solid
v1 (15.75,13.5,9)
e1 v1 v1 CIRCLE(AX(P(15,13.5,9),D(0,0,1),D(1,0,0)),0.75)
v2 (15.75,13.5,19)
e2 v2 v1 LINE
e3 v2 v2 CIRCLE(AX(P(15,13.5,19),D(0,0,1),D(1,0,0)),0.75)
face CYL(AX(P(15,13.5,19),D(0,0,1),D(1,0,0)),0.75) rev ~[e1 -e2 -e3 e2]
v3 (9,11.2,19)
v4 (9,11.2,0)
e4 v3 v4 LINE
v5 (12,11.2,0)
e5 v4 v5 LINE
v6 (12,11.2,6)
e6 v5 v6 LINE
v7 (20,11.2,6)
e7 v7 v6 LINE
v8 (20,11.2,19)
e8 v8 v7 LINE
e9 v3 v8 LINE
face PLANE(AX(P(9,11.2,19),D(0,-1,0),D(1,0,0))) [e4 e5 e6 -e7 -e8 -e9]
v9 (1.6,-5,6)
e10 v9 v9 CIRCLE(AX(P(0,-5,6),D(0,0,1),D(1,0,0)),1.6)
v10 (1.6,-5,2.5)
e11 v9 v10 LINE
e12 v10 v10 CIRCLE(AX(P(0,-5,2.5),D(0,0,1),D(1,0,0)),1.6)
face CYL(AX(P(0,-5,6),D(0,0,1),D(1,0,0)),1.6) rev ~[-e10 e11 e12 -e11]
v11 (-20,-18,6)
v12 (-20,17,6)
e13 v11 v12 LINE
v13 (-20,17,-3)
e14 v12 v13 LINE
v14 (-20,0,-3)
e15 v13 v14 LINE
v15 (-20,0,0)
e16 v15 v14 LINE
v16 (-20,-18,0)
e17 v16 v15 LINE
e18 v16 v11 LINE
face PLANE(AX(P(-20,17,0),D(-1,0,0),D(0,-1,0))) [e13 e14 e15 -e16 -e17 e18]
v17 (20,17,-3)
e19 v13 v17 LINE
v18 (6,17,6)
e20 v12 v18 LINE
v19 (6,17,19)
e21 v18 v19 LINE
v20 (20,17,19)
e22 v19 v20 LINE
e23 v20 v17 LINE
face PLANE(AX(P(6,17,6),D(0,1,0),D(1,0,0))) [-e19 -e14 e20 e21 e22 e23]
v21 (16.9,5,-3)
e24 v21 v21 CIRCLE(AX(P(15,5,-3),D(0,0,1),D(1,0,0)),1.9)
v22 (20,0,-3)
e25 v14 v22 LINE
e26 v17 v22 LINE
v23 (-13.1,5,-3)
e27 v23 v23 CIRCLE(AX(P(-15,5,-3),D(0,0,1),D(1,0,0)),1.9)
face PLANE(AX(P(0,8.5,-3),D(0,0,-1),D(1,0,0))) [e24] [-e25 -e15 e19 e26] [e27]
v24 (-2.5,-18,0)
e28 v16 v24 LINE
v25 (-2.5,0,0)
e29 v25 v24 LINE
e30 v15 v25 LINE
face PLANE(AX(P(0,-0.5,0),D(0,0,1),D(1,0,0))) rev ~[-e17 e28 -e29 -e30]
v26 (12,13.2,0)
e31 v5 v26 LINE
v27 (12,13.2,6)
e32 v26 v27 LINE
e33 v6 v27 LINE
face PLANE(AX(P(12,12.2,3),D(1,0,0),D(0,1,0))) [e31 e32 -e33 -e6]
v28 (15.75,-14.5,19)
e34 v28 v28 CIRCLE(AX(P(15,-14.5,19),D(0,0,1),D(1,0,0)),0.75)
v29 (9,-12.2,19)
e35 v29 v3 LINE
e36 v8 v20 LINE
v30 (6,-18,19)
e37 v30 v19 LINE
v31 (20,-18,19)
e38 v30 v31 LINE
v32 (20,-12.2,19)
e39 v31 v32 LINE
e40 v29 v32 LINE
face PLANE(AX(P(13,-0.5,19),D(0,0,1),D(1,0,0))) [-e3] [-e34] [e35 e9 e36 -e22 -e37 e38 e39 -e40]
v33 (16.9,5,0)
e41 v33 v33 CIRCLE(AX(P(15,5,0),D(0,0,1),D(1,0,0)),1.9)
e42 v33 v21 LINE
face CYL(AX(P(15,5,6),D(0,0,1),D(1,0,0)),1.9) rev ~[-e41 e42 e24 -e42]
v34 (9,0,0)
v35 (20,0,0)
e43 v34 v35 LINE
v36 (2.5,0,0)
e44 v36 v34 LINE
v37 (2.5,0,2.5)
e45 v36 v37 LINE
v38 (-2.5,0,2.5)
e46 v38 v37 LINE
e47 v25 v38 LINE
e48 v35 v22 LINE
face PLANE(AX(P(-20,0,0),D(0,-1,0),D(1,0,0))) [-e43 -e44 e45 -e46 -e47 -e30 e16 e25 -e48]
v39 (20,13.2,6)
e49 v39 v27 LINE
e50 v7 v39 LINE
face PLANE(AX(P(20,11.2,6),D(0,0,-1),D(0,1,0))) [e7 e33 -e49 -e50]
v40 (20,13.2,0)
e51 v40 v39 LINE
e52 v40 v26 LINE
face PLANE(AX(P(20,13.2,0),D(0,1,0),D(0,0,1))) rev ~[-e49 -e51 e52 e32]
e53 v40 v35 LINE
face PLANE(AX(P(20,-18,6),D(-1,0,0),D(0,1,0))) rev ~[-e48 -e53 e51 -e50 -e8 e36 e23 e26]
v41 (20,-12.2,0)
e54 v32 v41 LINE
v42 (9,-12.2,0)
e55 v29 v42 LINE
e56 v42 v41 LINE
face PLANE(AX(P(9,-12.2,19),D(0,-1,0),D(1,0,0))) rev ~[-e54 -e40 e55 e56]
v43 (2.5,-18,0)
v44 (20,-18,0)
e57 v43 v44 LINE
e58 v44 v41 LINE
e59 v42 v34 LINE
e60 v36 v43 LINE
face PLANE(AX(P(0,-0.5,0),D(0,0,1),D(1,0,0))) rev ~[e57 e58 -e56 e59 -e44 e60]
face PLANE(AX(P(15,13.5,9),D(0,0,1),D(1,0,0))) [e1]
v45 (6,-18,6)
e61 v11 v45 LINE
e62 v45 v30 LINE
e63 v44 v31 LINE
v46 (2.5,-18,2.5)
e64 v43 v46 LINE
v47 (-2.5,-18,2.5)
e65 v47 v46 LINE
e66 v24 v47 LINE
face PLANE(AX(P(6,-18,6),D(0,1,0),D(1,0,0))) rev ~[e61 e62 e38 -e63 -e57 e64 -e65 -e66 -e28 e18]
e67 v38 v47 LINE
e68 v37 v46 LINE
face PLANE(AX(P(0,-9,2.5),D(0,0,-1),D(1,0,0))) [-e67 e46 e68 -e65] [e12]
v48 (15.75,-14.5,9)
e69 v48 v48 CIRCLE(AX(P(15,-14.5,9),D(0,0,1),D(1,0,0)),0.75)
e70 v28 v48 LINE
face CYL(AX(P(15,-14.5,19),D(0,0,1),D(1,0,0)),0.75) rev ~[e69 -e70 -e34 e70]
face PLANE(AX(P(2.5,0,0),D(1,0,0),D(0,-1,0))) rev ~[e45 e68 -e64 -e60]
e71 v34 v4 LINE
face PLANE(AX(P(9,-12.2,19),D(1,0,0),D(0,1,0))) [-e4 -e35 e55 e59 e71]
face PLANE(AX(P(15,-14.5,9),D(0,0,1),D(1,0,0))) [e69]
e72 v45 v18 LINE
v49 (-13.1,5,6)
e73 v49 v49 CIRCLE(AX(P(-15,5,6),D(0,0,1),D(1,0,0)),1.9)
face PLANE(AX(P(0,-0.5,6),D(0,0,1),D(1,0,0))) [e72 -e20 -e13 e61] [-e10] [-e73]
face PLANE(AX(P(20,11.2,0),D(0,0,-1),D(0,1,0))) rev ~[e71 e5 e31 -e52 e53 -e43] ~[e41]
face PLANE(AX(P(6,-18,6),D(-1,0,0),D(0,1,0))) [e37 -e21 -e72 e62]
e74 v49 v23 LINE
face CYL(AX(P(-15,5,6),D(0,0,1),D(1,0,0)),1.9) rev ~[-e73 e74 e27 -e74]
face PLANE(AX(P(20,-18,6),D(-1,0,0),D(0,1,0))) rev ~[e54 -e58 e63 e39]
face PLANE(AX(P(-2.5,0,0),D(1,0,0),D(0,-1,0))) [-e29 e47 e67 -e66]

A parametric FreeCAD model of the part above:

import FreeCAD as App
import Part
import Sketcher

V = App.Vector
Q = App.Units.Quantity


def add_polygon(sketch, points):
    """Adds a closed chain of lines whose ends are joined by coincident constraints."""
    first, n = sketch.GeometryCount, len(points)
    for a, b in zip(points, points[1:] + points[:1]):
        sketch.addGeometry(Part.LineSegment(App.Vector(*a, 0), App.Vector(*b, 0)), False)
    for i in range(n):
        sketch.addConstraint(Sketcher.Constraint("Coincident", first + i, 2, first + (i + 1) % n, 1))

doc = App.newDocument("Part")
body = doc.addObject("PartDesign::Body", "Body")

# Sketch on XY plane
sketch1 = body.newObject("Sketcher::SketchObject", "Sketch")
sketch1.AttachmentSupport = (doc.getObject("XY_Plane"), [""])
sketch1.MapMode = "FlatFace"
add_polygon(sketch1, [(-20, 17), (-20, -18), (20, -18), (20, 17)])  # lines 0-3
sketch1.addConstraint([
    Sketcher.Constraint("Vertical", 0),
    Sketcher.Constraint("Horizontal", 1),
    Sketcher.Constraint("Vertical", 2),
    Sketcher.Constraint("Horizontal", 3),
    Sketcher.Constraint("DistanceX", 1, 1, 1, 2, Q("40 mm")),
    Sketcher.Constraint("DistanceY", 0, 2, 0, 1, Q("35 mm")),
    Sketcher.Constraint("DistanceX", 0, 2, -1, 1, Q("20 mm")),
    Sketcher.Constraint("DistanceY", 0, 2, -1, 1, Q("18 mm")),
])
pad1 = body.newObject("PartDesign::Pad", "Pad")
pad1.Profile = sketch1
pad1.Length = 6

# Sketch on XY plane
sketch2 = body.newObject("Sketcher::SketchObject", "Sketch001")
sketch2.AttachmentSupport = (doc.getObject("XY_Plane"), [""])
sketch2.MapMode = "FlatFace"
add_polygon(sketch2, [(-20, 0), (-20, 17), (20, 17), (20, 0)])  # lines 0-3
sketch2.addConstraint([
    Sketcher.Constraint("Vertical", 0),
    Sketcher.Constraint("Horizontal", 1),
    Sketcher.Constraint("Vertical", 2),
    Sketcher.Constraint("Horizontal", 3),
    Sketcher.Constraint("Symmetric", 2, 2, 3, 2, -1, 1),
    Sketcher.Constraint("DistanceX", 1, 1, 1, 2, Q("40 mm")),
    Sketcher.Constraint("DistanceY", 0, 1, 0, 2, Q("17 mm")),
])
pad2 = body.newObject("PartDesign::Pad", "Pad001")
pad2.Profile = sketch2
pad2.Length = 3
pad2.Reversed = True

# Sketch on XY plane
sketch3 = body.newObject("Sketcher::SketchObject", "Sketch002")
sketch3.AttachmentSupport = (doc.getObject("XY_Plane"), [""])
sketch3.MapMode = "FlatFace"
sketch3.AttachmentOffset = App.Placement(V(0, 0, 6), App.Rotation())
sketch3.addGeometry([
    Part.Circle(V(-15, 5, 0), V(0, 0, 1), 1.9),
    Part.Circle(V(15, 5, 0), V(0, 0, 1), 1.9),
    Part.Circle(V(0, -5, 0), V(0, 0, 1), 1.6),
], False)
sketch3.addConstraint([
    Sketcher.Constraint("Equal", 0, 1),
    Sketcher.Constraint("Symmetric", 0, 3, 1, 3, -2),
    Sketcher.Constraint("PointOnObject", 2, 3, -2),
    Sketcher.Constraint("Diameter", 0, Q("3.8 mm")),
    Sketcher.Constraint("Diameter", 2, Q("3.2 mm")),
    Sketcher.Constraint("DistanceX", 0, 3, -1, 1, Q("15 mm")),
    Sketcher.Constraint("DistanceY", -1, 1, 0, 3, Q("5 mm")),
    Sketcher.Constraint("DistanceY", 2, 3, -1, 1, Q("5 mm")),
])
pocket1 = body.newObject("PartDesign::Pocket", "Pocket")
pocket1.Profile = sketch3
pocket1.Type = "ThroughAll"

# Sketch on XY plane
sketch4 = body.newObject("Sketcher::SketchObject", "Sketch003")
sketch4.AttachmentSupport = (doc.getObject("XY_Plane"), [""])
sketch4.MapMode = "FlatFace"
sketch4.AttachmentOffset = App.Placement(V(0, 0, 6), App.Rotation())
add_polygon(sketch4, [(6, 17), (6, -18), (20, -18), (20, 17)])  # lines 0-3
sketch4.addConstraint([
    Sketcher.Constraint("Vertical", 0),
    Sketcher.Constraint("Horizontal", 1),
    Sketcher.Constraint("Vertical", 2),
    Sketcher.Constraint("Horizontal", 3),
    Sketcher.Constraint("DistanceX", 1, 1, 1, 2, Q("14 mm")),
    Sketcher.Constraint("DistanceY", 0, 2, 0, 1, Q("35 mm")),
    Sketcher.Constraint("DistanceX", -1, 1, 0, 2, Q("6 mm")),
    Sketcher.Constraint("DistanceY", 0, 2, -1, 1, Q("18 mm")),
])
pad3 = body.newObject("PartDesign::Pad", "Pad002")
pad3.Profile = sketch4
pad3.Length = 13

# Sketch on XY plane
sketch5 = body.newObject("Sketcher::SketchObject", "Sketch004")
sketch5.AttachmentSupport = (doc.getObject("XY_Plane"), [""])
sketch5.MapMode = "FlatFace"
sketch5.AttachmentOffset = App.Placement(V(0, 0, 19), App.Rotation())
add_polygon(sketch5, [(9, 11), (9, -12), (20, -12), (20, 11)])  # lines 0-3
sketch5.addConstraint([
    Sketcher.Constraint("Vertical", 0),
    Sketcher.Constraint("Horizontal", 1),
    Sketcher.Constraint("Vertical", 2),
    Sketcher.Constraint("Horizontal", 3),
    Sketcher.Constraint("DistanceX", 1, 1, 1, 2, Q("11 mm")),
    Sketcher.Constraint("DistanceY", 0, 2, 0, 1, Q("23.4 mm")),
    Sketcher.Constraint("DistanceX", -1, 1, 0, 2, Q("9 mm")),
    Sketcher.Constraint("DistanceY", 0, 2, -1, 1, Q("12.2 mm")),
])
pocket2 = body.newObject("PartDesign::Pocket", "Pocket001")
pocket2.Profile = sketch5
pocket2.Length = 19

# Sketch on XY plane
sketch6 = body.newObject("Sketcher::SketchObject", "Sketch005")
sketch6.AttachmentSupport = (doc.getObject("XY_Plane"), [""])
sketch6.MapMode = "FlatFace"
sketch6.AttachmentOffset = App.Placement(V(0, 0, 19), App.Rotation())
sketch6.addGeometry([
    Part.Circle(V(15, 13.5, 0), V(0, 0, 1), 0.8),
    Part.Circle(V(15, -14.5, 0), V(0, 0, 1), 0.8),
], False)
sketch6.addConstraint([
    Sketcher.Constraint("Equal", 0, 1),
    Sketcher.Constraint("Vertical", 0, 3, 1, 3),
    Sketcher.Constraint("Diameter", 0, Q("1.5 mm")),
    Sketcher.Constraint("DistanceX", -1, 1, 0, 3, Q("15 mm")),
    Sketcher.Constraint("DistanceY", 1, 3, 0, 3, Q("28 mm")),
    Sketcher.Constraint("DistanceY", -1, 1, 0, 3, Q("13.5 mm")),
])
pocket3 = body.newObject("PartDesign::Pocket", "Pocket002")
pocket3.Profile = sketch6
pocket3.Length = 10

# Sketch on YZ plane
sketch7 = body.newObject("Sketcher::SketchObject", "Sketch006")
sketch7.AttachmentSupport = (doc.getObject("YZ_Plane"), [""])
sketch7.MapMode = "FlatFace"
sketch7.AttachmentOffset = App.Placement(V(0, 0, 20), App.Rotation())
add_polygon(sketch7, [(11.2, 6), (11.2, 0), (13.2, 0), (13.2, 6)])  # lines 0-3
sketch7.addConstraint([
    Sketcher.Constraint("Vertical", 0),
    Sketcher.Constraint("Horizontal", 1),
    Sketcher.Constraint("Vertical", 2),
    Sketcher.Constraint("Horizontal", 3),
    Sketcher.Constraint("PointOnObject", 0, 2, -1),
    Sketcher.Constraint("DistanceX", 1, 1, 1, 2, Q("2 mm")),
    Sketcher.Constraint("DistanceY", 0, 2, 0, 1, Q("6 mm")),
    Sketcher.Constraint("DistanceX", -1, 1, 0, 2, Q("11.2 mm")),
])
pocket4 = body.newObject("PartDesign::Pocket", "Pocket003")
pocket4.Profile = sketch7
pocket4.Length = 8

# Sketch on XY plane
sketch8 = body.newObject("Sketcher::SketchObject", "Sketch007")
sketch8.AttachmentSupport = (doc.getObject("XY_Plane"), [""])
sketch8.MapMode = "FlatFace"
add_polygon(sketch8, [(-2, -18), (-2, 0), (2, 0), (2, -18)])  # lines 0-3
sketch8.addConstraint([
    Sketcher.Constraint("Vertical", 0),
    Sketcher.Constraint("Horizontal", 1),
    Sketcher.Constraint("Vertical", 2),
    Sketcher.Constraint("Horizontal", 3),
    Sketcher.Constraint("Symmetric", 0, 2, 1, 2, -1, 1),
    Sketcher.Constraint("DistanceX", 1, 1, 1, 2, Q("5 mm")),
    Sketcher.Constraint("DistanceY", 0, 1, 0, 2, Q("18 mm")),
])
pocket5 = body.newObject("PartDesign::Pocket", "Pocket004")
pocket5.Profile = sketch8
pocket5.Length = 2.5
pocket5.Reversed = True

doc.recompute()
